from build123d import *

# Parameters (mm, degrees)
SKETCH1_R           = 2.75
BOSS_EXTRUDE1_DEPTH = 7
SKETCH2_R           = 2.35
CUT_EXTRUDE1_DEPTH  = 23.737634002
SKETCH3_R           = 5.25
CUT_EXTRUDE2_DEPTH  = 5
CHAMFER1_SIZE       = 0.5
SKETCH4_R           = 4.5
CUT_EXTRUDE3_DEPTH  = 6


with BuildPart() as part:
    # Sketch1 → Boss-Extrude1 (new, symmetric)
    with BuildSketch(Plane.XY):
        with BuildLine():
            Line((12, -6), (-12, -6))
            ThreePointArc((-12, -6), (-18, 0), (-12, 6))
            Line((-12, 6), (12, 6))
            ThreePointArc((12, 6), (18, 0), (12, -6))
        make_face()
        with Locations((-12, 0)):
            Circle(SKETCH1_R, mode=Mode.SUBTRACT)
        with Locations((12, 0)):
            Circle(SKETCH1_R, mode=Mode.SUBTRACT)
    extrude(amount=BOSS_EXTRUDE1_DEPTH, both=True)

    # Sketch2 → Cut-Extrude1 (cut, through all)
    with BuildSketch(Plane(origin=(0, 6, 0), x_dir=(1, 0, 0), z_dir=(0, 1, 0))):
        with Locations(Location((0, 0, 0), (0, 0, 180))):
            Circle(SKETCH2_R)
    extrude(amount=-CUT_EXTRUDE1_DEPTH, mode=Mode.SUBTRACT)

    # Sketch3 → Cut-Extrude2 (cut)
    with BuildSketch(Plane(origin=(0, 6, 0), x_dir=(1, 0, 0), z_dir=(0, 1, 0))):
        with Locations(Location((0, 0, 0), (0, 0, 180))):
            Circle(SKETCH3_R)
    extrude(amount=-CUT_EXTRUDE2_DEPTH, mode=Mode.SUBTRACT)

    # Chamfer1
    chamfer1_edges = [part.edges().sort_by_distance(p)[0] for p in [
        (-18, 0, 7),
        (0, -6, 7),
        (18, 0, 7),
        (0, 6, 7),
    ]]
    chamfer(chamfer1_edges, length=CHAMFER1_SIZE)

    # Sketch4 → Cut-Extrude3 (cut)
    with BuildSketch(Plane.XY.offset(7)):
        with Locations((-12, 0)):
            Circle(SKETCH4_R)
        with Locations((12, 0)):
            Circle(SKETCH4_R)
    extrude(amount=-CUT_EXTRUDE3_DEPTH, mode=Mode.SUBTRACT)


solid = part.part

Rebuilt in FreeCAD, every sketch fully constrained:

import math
import FreeCAD as App
import Part
import Sketcher
from FreeCAD import Vector
Q = App.Units.Quantity


def edges_at(feature, points):
    """Names of the edges that pass closest to the given points."""
    edges = feature.Shape.Edges
    near = lambda p: min(range(len(edges)), key=lambda i: edges[i].distToShape(Part.Vertex(*p))[0])
    return sorted({f"Edge{near(p) + 1}" for p in points})

doc = App.newDocument("Part")
params = doc.addObject("Spreadsheet::Sheet", "Params")
for row, (alias, value) in enumerate([
    ("sketch1_radius", "6 mm"),
    ("sketch1_diameter", "5.5 mm"),
    ("sketch1_width", "24 mm"),
    ("pad1_length", "14 mm"),
    ("sketch2_diameter", "4.7 mm"),
    ("sketch3_diameter", "10.5 mm"),
    ("pocket2_length", "5 mm"),
    ("chamfer_size", "0.5 mm"),
    ("sketch4_diameter", "9 mm"),
    ("pocket3_length", "6 mm"),
], start=1):
    params.set(f"A{row}", alias)
    params.set(f"B{row}", "=" + value)
    params.setAlias(f"B{row}", alias)

body = doc.addObject("PartDesign::Body", "Body")

# Sketch on XY plane
sketch1 = body.newObject("Sketcher::SketchObject", "Sketch")
sketch1.AttachmentSupport = (doc.getObject("XY_Plane"), [""])
sketch1.MapMode = "FlatFace"
sketch1.addGeometry([
    Part.LineSegment(Vector(-12, -6, 0), Vector(12, -6, 0)),  # 0
    Part.ArcOfCircle(Part.Circle(Vector(12, 0, 0), Vector(0, 0, 1), 6), math.radians(-90), math.radians(90)),  # 1
    Part.LineSegment(Vector(12, 6, 0), Vector(-12, 6, 0)),  # 2
    Part.ArcOfCircle(Part.Circle(Vector(-12, 0, 0), Vector(0, 0, 1), 6), math.radians(90), math.radians(270)),  # 3
    Part.Circle(Vector(12, 0, 0), Vector(0, 0, 1), 2.8),  # 4
    Part.Circle(Vector(-12, 0, 0), Vector(0, 0, 1), 2.8),  # 5
], False)
sketch1.addConstraint([
    Sketcher.Constraint("Tangent", 0, 2, 1, 1),
    Sketcher.Constraint("Tangent", 1, 2, 2, 1),
    Sketcher.Constraint("Tangent", 2, 2, 3, 1),
    Sketcher.Constraint("Tangent", 3, 2, 0, 1),
    Sketcher.Constraint("Horizontal", 0),
    Sketcher.Constraint("Horizontal", 2),
    Sketcher.Constraint("Coincident", 4, 3, 1, 3),
    Sketcher.Constraint("Coincident", 5, 3, 3, 3),
    Sketcher.Constraint("Equal", 4, 5),
    Sketcher.Constraint("Symmetric", 1, 3, 3, 3, -1, 1),
    Sketcher.Constraint("Radius", 1, Q("6 mm")),
    Sketcher.Constraint("Diameter", 4, Q("5.5 mm")),
    Sketcher.Constraint("DistanceX", 0, 1, 0, 2, Q("24 mm")),
])
sketch1.setExpression("Constraints[10]", "Params.sketch1_radius")
sketch1.setExpression("Constraints[11]", "Params.sketch1_diameter")
sketch1.setExpression("Constraints[12]", "Params.sketch1_width")
pad1 = body.newObject("PartDesign::Pad", "Pad")
pad1.Profile = sketch1
pad1.setExpression("Length", "Params.pad1_length")
pad1.Midplane = True

# Sketch on XZ plane
sketch2 = body.newObject("Sketcher::SketchObject", "Sketch001")
sketch2.AttachmentSupport = (doc.getObject("XZ_Plane"), [""])
sketch2.MapMode = "FlatFace"
sketch2.AttachmentOffset = App.Placement(Vector(0, 0, -6), App.Rotation())
sketch2.addGeometry(Part.Circle(Vector(0, 0, 0), Vector(0, 0, 1), 2.4), False)
sketch2.addConstraint([
    Sketcher.Constraint("Coincident", 0, 3, -1, 1),
    Sketcher.Constraint("Diameter", 0, Q("4.7 mm")),
])
sketch2.setExpression("Constraints[1]", "Params.sketch2_diameter")
pocket1 = body.newObject("PartDesign::Pocket", "Pocket")
pocket1.Profile = sketch2
pocket1.Type = "ThroughAll"
pocket1.Reversed = True

# Sketch on XZ plane
sketch3 = body.newObject("Sketcher::SketchObject", "Sketch002")
sketch3.AttachmentSupport = (doc.getObject("XZ_Plane"), [""])
sketch3.MapMode = "FlatFace"
sketch3.AttachmentOffset = App.Placement(Vector(0, 0, -6), App.Rotation())
sketch3.addGeometry(Part.Circle(Vector(0, 0, 0), Vector(0, 0, 1), 5), False)
sketch3.addConstraint([
    Sketcher.Constraint("Coincident", 0, 3, -1, 1),
    Sketcher.Constraint("Diameter", 0, Q("10.5 mm")),
])
sketch3.setExpression("Constraints[1]", "Params.sketch3_diameter")
pocket2 = body.newObject("PartDesign::Pocket", "Pocket001")
pocket2.Profile = sketch3
pocket2.setExpression("Length", "Params.pocket2_length")
pocket2.Reversed = True
doc.recompute()

chamfer = body.newObject("PartDesign::Chamfer", "Chamfer")
chamfer.Base = (pocket2, edges_at(pocket2, [
    (-18, 0, 7),
    (0, -6, 7),
    (18, 0, 7),
    (0, 6, 7),
]))
chamfer.setExpression("Size", "Params.chamfer_size")

# Sketch on XY plane
sketch4 = body.newObject("Sketcher::SketchObject", "Sketch003")
sketch4.AttachmentSupport = (doc.getObject("XY_Plane"), [""])
sketch4.MapMode = "FlatFace"
sketch4.AttachmentOffset = App.Placement(Vector(0, 0, 7), App.Rotation())
sketch4.addGeometry([
    Part.Circle(Vector(-12, 0, 0), Vector(0, 0, 1), 4.5),
    Part.Circle(Vector(12, 0, 0), Vector(0, 0, 1), 4.5),
], False)
sketch4.addConstraint([
    Sketcher.Constraint("Equal", 0, 1),
    Sketcher.Constraint("Symmetric", 0, 3, 1, 3, -1, 1),
    Sketcher.Constraint("PointOnObject", 0, 3, -1),
    Sketcher.Constraint("Diameter", 0, Q("9 mm")),
    Sketcher.Constraint("DistanceX", 0, 3, -1, 1, Q("12 mm")),
])
sketch4.setExpression("Constraints[3]", "Params.sketch4_diameter")
pocket3 = body.newObject("PartDesign::Pocket", "Pocket002")
pocket3.Profile = sketch4
pocket3.setExpression("Length", "Params.pocket3_length")

doc.recompute()
